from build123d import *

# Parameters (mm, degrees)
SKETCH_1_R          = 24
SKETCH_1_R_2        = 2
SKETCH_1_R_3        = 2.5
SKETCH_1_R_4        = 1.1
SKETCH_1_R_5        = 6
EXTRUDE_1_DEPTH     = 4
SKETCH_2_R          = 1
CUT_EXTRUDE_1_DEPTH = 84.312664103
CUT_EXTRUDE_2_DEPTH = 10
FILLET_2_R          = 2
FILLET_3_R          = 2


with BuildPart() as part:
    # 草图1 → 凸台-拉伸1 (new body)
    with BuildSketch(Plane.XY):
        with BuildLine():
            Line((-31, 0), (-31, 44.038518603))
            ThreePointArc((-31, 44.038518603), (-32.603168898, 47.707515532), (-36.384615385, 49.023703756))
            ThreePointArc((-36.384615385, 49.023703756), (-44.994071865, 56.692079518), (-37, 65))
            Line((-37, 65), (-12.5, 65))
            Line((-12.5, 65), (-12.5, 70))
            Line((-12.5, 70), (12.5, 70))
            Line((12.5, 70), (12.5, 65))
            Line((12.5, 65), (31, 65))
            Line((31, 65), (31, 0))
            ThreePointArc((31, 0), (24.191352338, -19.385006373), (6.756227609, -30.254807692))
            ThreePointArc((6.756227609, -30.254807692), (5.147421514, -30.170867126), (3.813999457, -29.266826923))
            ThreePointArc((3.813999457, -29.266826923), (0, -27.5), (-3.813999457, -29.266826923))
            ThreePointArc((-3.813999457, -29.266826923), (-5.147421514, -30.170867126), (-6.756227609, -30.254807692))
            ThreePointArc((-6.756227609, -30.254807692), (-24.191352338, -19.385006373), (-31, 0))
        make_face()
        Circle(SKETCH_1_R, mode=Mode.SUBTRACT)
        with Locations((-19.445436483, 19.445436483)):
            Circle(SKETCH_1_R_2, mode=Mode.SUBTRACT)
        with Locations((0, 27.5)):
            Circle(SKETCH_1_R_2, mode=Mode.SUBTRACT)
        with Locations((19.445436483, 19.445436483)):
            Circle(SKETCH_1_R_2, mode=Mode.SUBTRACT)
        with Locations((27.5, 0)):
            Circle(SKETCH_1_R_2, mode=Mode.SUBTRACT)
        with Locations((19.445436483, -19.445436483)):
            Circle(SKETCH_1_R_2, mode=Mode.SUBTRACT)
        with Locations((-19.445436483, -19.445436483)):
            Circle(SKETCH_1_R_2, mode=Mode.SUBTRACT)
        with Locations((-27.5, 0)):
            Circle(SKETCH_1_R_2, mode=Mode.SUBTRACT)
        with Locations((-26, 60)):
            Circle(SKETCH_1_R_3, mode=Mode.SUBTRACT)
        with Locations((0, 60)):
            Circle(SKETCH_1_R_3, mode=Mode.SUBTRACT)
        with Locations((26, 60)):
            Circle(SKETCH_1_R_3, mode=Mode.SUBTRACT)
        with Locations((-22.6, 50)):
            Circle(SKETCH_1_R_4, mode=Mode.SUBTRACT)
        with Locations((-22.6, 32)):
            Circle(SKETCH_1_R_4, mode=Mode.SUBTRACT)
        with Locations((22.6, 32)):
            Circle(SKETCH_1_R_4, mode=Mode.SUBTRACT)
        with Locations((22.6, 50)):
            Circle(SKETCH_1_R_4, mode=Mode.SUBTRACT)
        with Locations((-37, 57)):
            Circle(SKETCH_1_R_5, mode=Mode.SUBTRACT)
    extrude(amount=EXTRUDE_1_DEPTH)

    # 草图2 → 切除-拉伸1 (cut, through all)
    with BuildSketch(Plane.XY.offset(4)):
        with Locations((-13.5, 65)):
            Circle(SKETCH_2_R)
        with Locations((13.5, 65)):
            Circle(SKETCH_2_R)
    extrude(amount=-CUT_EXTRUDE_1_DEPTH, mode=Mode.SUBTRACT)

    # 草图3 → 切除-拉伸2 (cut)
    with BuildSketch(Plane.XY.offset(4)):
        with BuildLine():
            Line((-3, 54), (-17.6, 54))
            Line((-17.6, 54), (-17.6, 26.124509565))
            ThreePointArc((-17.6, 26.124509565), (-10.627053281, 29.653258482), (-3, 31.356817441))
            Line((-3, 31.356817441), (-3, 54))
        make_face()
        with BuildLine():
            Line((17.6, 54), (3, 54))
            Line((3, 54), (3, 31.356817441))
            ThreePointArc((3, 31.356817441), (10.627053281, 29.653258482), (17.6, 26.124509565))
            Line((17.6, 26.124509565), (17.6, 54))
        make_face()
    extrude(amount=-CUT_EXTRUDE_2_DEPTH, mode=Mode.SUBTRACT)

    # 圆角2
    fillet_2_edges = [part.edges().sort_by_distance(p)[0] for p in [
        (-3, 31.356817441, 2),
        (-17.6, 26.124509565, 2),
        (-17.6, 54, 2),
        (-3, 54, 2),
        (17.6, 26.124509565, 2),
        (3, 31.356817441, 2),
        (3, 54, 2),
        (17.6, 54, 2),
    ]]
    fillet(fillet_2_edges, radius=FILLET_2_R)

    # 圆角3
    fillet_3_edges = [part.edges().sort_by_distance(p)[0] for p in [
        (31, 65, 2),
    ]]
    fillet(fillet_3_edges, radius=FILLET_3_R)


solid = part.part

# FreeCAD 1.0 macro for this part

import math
import FreeCAD as App
import Part
import Sketcher
from FreeCAD import Vector
Q = App.Units.Quantity


def edges_at(feature, points):
    """Names of the edges that pass closest to the given points."""
    edges = feature.Shape.Edges
    near = lambda p: min(range(len(edges)), key=lambda i: edges[i].distToShape(Part.Vertex(*p))[0])
    return sorted({f"Edge{near(p) + 1}" for p in points})

doc = App.newDocument("Part")
body = doc.addObject("PartDesign::Body", "Body")

sketch1 = body.newObject("Sketcher::SketchObject", "Sketch")
sketch1.AttachmentSupport = (doc.getObject("XY_Plane"), [""])
sketch1.MapMode = "FlatFace"
sketch1.addGeometry([
    Part.LineSegment(Vector(-31, 44, 0), Vector(-31, 0, 0)),
    Part.ArcOfCircle(Part.Circle(Vector(0, 0, 0), Vector(0, 0, 1), 31), math.radians(180), math.radians(257)),
    Part.ArcOfCircle(Part.Circle(Vector(-6.1, -27.3, 0), Vector(0, 0, 1), 3), math.radians(-103), math.radians(-40)),
    Part.ArcOfCircle(Part.Circle(Vector(0, -32.5, 0), Vector(0, 0, 1), 5), math.radians(40), math.radians(140)),
    Part.ArcOfCircle(Part.Circle(Vector(6.1, -27.3, 0), Vector(0, 0, 1), 3), math.radians(-140), math.radians(-77)),
    Part.ArcOfCircle(Part.Circle(Vector(0, 0, 0), Vector(0, 0, 1), 31), math.radians(-77), math.radians(0)),
    Part.LineSegment(Vector(31, 0, 0), Vector(31, 65, 0)),
    Part.LineSegment(Vector(31, 65, 0), Vector(12.5, 65, 0)),
    Part.LineSegment(Vector(12.5, 65, 0), Vector(12.5, 70, 0)),
    Part.LineSegment(Vector(12.5, 70, 0), Vector(-12.5, 70, 0)),
    Part.LineSegment(Vector(-12.5, 70, 0), Vector(-12.5, 65, 0)),
    Part.LineSegment(Vector(-12.5, 65, 0), Vector(-37, 65, 0)),
    Part.ArcOfCircle(Part.Circle(Vector(-37, 57, 0), Vector(0, 0, 1), 8), math.radians(90), math.radians(274)),
    Part.ArcOfCircle(Part.Circle(Vector(-36, 44, 0), Vector(0, 0, 1), 5), math.radians(0), math.radians(94)),
    Part.Circle(Vector(19.4, -19.4, 0), Vector(0, 0, 1), 2),
    Part.Circle(Vector(27.5, 0, 0), Vector(0, 0, 1), 2),
    Part.Circle(Vector(19.4, 19.4, 0), Vector(0, 0, 1), 2),
    Part.Circle(Vector(0, 0, 0), Vector(0, 0, 1), 24),
    Part.Circle(Vector(-19.4, -19.4, 0), Vector(0, 0, 1), 2),
    Part.Circle(Vector(-19.4, 19.4, 0), Vector(0, 0, 1), 2),
    Part.Circle(Vector(-27.5, 0, 0), Vector(0, 0, 1), 2),
    Part.Circle(Vector(22.6, 32, 0), Vector(0, 0, 1), 1.1),
    Part.Circle(Vector(0, 27.5, 0), Vector(0, 0, 1), 2),
    Part.Circle(Vector(22.6, 50, 0), Vector(0, 0, 1), 1.1),
    Part.Circle(Vector(26, 60, 0), Vector(0, 0, 1), 2.5),
    Part.Circle(Vector(0, 60, 0), Vector(0, 0, 1), 2.5),
    Part.Circle(Vector(-22.6, 32, 0), Vector(0, 0, 1), 1.1),
    Part.Circle(Vector(-22.6, 50, 0), Vector(0, 0, 1), 1.1),
    Part.Circle(Vector(-26, 60, 0), Vector(0, 0, 1), 2.5),
    Part.Circle(Vector(-37, 57, 0), Vector(0, 0, 1), 6),
], False)
sketch1.addConstraint([
    Sketcher.Constraint("Tangent", 0, 2, 1, 1),
    Sketcher.Constraint("Tangent", 1, 2, 2, 1),
    Sketcher.Constraint("Tangent", 2, 2, 3, 2),
    Sketcher.Constraint("Tangent", 3, 1, 4, 1),
    Sketcher.Constraint("Tangent", 4, 2, 5, 1),
    Sketcher.Constraint("Tangent", 5, 2, 6, 1),
    Sketcher.Constraint("Coincident", 6, 2, 7, 1),
    Sketcher.Constraint("Coincident", 7, 2, 8, 1),
    Sketcher.Constraint("Coincident", 8, 2, 9, 1),
    Sketcher.Constraint("Coincident", 9, 2, 10, 1),
    Sketcher.Constraint("Coincident", 10, 2, 11, 1),
    Sketcher.Constraint("Tangent", 11, 2, 12, 1),
    Sketcher.Constraint("Tangent", 12, 2, 13, 2),
    Sketcher.Constraint("Tangent", 13, 1, 0, 1),
    Sketcher.Constraint("Vertical", 0),
    Sketcher.Constraint("Vertical", 6),
    Sketcher.Constraint("Horizontal", 7),
    Sketcher.Constraint("Vertical", 8),
    Sketcher.Constraint("Horizontal", 9),
    Sketcher.Constraint("Vertical", 10),
    Sketcher.Constraint("Horizontal", 11),
    Sketcher.Constraint("Coincident", 1, 3, -1, 1),
    Sketcher.Constraint("Coincident", 5, 3, -1, 1),
    Sketcher.Constraint("Coincident", 17, 3, -1, 1),
    Sketcher.Constraint("Coincident", 29, 3, 12, 3),
    Sketcher.Constraint("Equal", 2, 4),
    Sketcher.Constraint("Equal", 1, 5),
    Sketcher.Constraint("Equal", 3, 13),
    Sketcher.Constraint("Equal", 14, 15),
    Sketcher.Constraint("Equal", 15, 16),
    Sketcher.Constraint("Equal", 16, 18),
    Sketcher.Constraint("Equal", 18, 19),
    Sketcher.Constraint("Equal", 19, 20),
    Sketcher.Constraint("Equal", 20, 22),
    Sketcher.Constraint("Equal", 21, 23),
    Sketcher.Constraint("Equal", 24, 25),
    Sketcher.Constraint("Equal", 23, 26),
    Sketcher.Constraint("Equal", 26, 27),
    Sketcher.Constraint("Equal", 25, 28),
    Sketcher.Constraint("Symmetric", 16, 3, 18, 3, -1, 1),
    Sketcher.Constraint("Symmetric", 14, 3, 19, 3, -1, 1),
    Sketcher.Constraint("Symmetric", 15, 3, 20, 3, -1, 1),
    Sketcher.Constraint("Symmetric", 14, 3, 18, 3, -2),
    Sketcher.Constraint("Symmetric", 21, 3, 26, 3, -2),
    Sketcher.Constraint("Symmetric", 23, 3, 27, 3, -2),
    Sketcher.Constraint("Symmetric", 24, 3, 28, 3, -2),
    Sketcher.Constraint("Symmetric", 7, 2, 10, 2, -2),
    Sketcher.Constraint("PointOnObject", 3, 3, -2),
    Sketcher.Constraint("PointOnObject", 15, 3, -1),
    Sketcher.Constraint("PointOnObject", 22, 3, -2),
    Sketcher.Constraint("PointOnObject", 25, 3, -2),
    Sketcher.Constraint("Horizontal", 24, 3, 25, 3),
    Sketcher.Constraint("Vertical", 21, 3, 23, 3),
    Sketcher.Constraint("Diameter", 14, Q("4 mm")),
    Sketcher.Constraint("Diameter", 17, Q("48 mm")),
    Sketcher.Constraint("Diameter", 24, Q("5 mm")),
    Sketcher.Constraint("Diameter", 29, Q("12 mm")),
    Sketcher.Constraint("Radius", 1, Q("31 mm")),
    Sketcher.Constraint("Radius", 2, Q("3 mm")),
    Sketcher.Constraint("Radius", 3, Q("5 mm")),
    Sketcher.Constraint("Radius", 12, Q("8 mm")),
    Sketcher.Constraint("Diameter", 21, Q("2.2 mm")),
    Sketcher.Constraint("DistanceX", 9, 2, 9, 1, Q("25 mm")),
    Sketcher.Constraint("DistanceY", 6, 1, 6, 2, Q("65 mm")),
    Sketcher.Constraint("DistanceY", 8, 1, 8, 2, Q("5 mm")),
    Sketcher.Constraint("DistanceX", 11, 2, 11, 1, Q("24.5 mm")),
    Sketcher.Constraint("DistanceY", -1, 1, 21, 3, Q("32 mm")),
    Sketcher.Constraint("DistanceY", -1, 1, 23, 3, Q("50 mm")),
    Sketcher.Constraint("DistanceX", -1, 1, 24, 3, Q("26 mm")),
    Sketcher.Constraint("DistanceY", -1, 1, 24, 3, Q("60 mm")),
    Sketcher.Constraint("DistanceY", 3, 3, -1, 1, Q("32.5 mm")),
    Sketcher.Constraint("DistanceX", -1, 1, 15, 3, Q("27.5 mm")),
    Sketcher.Constraint("DistanceX", -1, 1, 21, 3, Q("22.6 mm")),
    Sketcher.Constraint("DistanceY", -1, 1, 22, 3, Q("27.5 mm")),
    Sketcher.Constraint("DistanceY", 4, 3, 16, 3, Q("46.77236 mm")),
    Sketcher.Constraint("DistanceX", 18, 3, 1, 2, Q("12.689209 mm")),
])
pad1 = body.newObject("PartDesign::Pad", "Pad")
pad1.Profile = sketch1
pad1.Length = 4

sketch2 = body.newObject("Sketcher::SketchObject", "Sketch001")
sketch2.AttachmentSupport = (doc.getObject("XY_Plane"), [""])
sketch2.MapMode = "FlatFace"
sketch2.AttachmentOffset = App.Placement(Vector(0, 0, 4), App.Rotation())
sketch2.addGeometry([
    Part.Circle(Vector(-13.5, 65, 0), Vector(0, 0, 1), 1),
    Part.Circle(Vector(13.5, 65, 0), Vector(0, 0, 1), 1),
], False)
sketch2.addConstraint([
    Sketcher.Constraint("Equal", 0, 1),
    Sketcher.Constraint("Symmetric", 0, 3, 1, 3, -2),
    Sketcher.Constraint("Diameter", 0, Q("2 mm")),
    Sketcher.Constraint("DistanceY", -1, 1, 0, 3, Q("65 mm")),
    Sketcher.Constraint("DistanceX", 0, 3, 1, 3, Q("27 mm")),
])
pocket1 = body.newObject("PartDesign::Pocket", "Pocket")
pocket1.Profile = sketch2
pocket1.Type = "ThroughAll"

sketch3 = body.newObject("Sketcher::SketchObject", "Sketch002")
sketch3.AttachmentSupport = (doc.getObject("XY_Plane"), [""])
sketch3.MapMode = "FlatFace"
sketch3.AttachmentOffset = App.Placement(Vector(0, 0, 4), App.Rotation())
sketch3.addGeometry([
    Part.LineSegment(Vector(-3, 54, 0), Vector(-18, 54, 0)),
    Part.LineSegment(Vector(-18, 54, 0), Vector(-18, 26, 0)),
    Part.ArcOfCircle(Part.Circle(Vector(0, 0, 0), Vector(0, 0, 1), 31), math.radians(95), math.radians(124)),
    Part.LineSegment(Vector(-3, 31, 0), Vector(-3, 54, 0)),
    Part.LineSegment(Vector(18, 54, 0), Vector(3, 54, 0)),
    Part.LineSegment(Vector(3, 54, 0), Vector(3, 31, 0)),
    Part.ArcOfCircle(Part.Circle(Vector(0, 0, 0), Vector(0, 0, 1), 31), math.radians(56), math.radians(85)),
    Part.LineSegment(Vector(18, 26, 0), Vector(18, 54, 0)),
], False)
sketch3.addConstraint([
    Sketcher.Constraint("Coincident", 0, 2, 1, 1),
    Sketcher.Constraint("Coincident", 1, 2, 2, 2),
    Sketcher.Constraint("Coincident", 2, 1, 3, 1),
    Sketcher.Constraint("Coincident", 3, 2, 0, 1),
    Sketcher.Constraint("Coincident", 4, 2, 5, 1),
    Sketcher.Constraint("Coincident", 5, 2, 6, 2),
    Sketcher.Constraint("Coincident", 6, 1, 7, 1),
    Sketcher.Constraint("Coincident", 7, 2, 4, 1),
    Sketcher.Constraint("Horizontal", 0),
    Sketcher.Constraint("Vertical", 1),
    Sketcher.Constraint("Vertical", 3),
    Sketcher.Constraint("Horizontal", 4),
    Sketcher.Constraint("Vertical", 5),
    Sketcher.Constraint("Vertical", 7),
    Sketcher.Constraint("Coincident", 2, 3, -1, 1),
    Sketcher.Constraint("Coincident", 6, 3, -1, 1),
    Sketcher.Constraint("Equal", 2, 6),
    Sketcher.Constraint("Symmetric", 3, 2, 4, 2, -2),
    Sketcher.Constraint("Horizontal", 1, 2, 6, 1),
    Sketcher.Constraint("Radius", 2, Q("31.5 mm")),
    Sketcher.Constraint("DistanceX", 0, 2, 0, 1, Q("14.6 mm")),
    Sketcher.Constraint("DistanceY", -1, 1, 0, 2, Q("54 mm")),
    Sketcher.Constraint("DistanceX", 2, 1, -1, 1, Q("3 mm")),
])
pocket2 = body.newObject("PartDesign::Pocket", "Pocket001")
pocket2.Profile = sketch3
pocket2.Length = 10
doc.recompute()

fillet = body.newObject("PartDesign::Fillet", "Fillet")
fillet.Base = (pocket2, edges_at(pocket2, [
    (-3, 31.357, 2),
    (-17.6, 26.125, 2),
    (-17.6, 54, 2),
    (-3, 54, 2),
    (17.6, 26.125, 2),
    (3, 31.357, 2),
    (3, 54, 2),
    (17.6, 54, 2),
]))
fillet.Radius = 2
doc.recompute()

fillet2 = body.newObject("PartDesign::Fillet", "Fillet001")
fillet2.Base = (fillet, edges_at(fillet, [(31, 65, 2)]))
fillet2.Radius = 2

doc.recompute()
